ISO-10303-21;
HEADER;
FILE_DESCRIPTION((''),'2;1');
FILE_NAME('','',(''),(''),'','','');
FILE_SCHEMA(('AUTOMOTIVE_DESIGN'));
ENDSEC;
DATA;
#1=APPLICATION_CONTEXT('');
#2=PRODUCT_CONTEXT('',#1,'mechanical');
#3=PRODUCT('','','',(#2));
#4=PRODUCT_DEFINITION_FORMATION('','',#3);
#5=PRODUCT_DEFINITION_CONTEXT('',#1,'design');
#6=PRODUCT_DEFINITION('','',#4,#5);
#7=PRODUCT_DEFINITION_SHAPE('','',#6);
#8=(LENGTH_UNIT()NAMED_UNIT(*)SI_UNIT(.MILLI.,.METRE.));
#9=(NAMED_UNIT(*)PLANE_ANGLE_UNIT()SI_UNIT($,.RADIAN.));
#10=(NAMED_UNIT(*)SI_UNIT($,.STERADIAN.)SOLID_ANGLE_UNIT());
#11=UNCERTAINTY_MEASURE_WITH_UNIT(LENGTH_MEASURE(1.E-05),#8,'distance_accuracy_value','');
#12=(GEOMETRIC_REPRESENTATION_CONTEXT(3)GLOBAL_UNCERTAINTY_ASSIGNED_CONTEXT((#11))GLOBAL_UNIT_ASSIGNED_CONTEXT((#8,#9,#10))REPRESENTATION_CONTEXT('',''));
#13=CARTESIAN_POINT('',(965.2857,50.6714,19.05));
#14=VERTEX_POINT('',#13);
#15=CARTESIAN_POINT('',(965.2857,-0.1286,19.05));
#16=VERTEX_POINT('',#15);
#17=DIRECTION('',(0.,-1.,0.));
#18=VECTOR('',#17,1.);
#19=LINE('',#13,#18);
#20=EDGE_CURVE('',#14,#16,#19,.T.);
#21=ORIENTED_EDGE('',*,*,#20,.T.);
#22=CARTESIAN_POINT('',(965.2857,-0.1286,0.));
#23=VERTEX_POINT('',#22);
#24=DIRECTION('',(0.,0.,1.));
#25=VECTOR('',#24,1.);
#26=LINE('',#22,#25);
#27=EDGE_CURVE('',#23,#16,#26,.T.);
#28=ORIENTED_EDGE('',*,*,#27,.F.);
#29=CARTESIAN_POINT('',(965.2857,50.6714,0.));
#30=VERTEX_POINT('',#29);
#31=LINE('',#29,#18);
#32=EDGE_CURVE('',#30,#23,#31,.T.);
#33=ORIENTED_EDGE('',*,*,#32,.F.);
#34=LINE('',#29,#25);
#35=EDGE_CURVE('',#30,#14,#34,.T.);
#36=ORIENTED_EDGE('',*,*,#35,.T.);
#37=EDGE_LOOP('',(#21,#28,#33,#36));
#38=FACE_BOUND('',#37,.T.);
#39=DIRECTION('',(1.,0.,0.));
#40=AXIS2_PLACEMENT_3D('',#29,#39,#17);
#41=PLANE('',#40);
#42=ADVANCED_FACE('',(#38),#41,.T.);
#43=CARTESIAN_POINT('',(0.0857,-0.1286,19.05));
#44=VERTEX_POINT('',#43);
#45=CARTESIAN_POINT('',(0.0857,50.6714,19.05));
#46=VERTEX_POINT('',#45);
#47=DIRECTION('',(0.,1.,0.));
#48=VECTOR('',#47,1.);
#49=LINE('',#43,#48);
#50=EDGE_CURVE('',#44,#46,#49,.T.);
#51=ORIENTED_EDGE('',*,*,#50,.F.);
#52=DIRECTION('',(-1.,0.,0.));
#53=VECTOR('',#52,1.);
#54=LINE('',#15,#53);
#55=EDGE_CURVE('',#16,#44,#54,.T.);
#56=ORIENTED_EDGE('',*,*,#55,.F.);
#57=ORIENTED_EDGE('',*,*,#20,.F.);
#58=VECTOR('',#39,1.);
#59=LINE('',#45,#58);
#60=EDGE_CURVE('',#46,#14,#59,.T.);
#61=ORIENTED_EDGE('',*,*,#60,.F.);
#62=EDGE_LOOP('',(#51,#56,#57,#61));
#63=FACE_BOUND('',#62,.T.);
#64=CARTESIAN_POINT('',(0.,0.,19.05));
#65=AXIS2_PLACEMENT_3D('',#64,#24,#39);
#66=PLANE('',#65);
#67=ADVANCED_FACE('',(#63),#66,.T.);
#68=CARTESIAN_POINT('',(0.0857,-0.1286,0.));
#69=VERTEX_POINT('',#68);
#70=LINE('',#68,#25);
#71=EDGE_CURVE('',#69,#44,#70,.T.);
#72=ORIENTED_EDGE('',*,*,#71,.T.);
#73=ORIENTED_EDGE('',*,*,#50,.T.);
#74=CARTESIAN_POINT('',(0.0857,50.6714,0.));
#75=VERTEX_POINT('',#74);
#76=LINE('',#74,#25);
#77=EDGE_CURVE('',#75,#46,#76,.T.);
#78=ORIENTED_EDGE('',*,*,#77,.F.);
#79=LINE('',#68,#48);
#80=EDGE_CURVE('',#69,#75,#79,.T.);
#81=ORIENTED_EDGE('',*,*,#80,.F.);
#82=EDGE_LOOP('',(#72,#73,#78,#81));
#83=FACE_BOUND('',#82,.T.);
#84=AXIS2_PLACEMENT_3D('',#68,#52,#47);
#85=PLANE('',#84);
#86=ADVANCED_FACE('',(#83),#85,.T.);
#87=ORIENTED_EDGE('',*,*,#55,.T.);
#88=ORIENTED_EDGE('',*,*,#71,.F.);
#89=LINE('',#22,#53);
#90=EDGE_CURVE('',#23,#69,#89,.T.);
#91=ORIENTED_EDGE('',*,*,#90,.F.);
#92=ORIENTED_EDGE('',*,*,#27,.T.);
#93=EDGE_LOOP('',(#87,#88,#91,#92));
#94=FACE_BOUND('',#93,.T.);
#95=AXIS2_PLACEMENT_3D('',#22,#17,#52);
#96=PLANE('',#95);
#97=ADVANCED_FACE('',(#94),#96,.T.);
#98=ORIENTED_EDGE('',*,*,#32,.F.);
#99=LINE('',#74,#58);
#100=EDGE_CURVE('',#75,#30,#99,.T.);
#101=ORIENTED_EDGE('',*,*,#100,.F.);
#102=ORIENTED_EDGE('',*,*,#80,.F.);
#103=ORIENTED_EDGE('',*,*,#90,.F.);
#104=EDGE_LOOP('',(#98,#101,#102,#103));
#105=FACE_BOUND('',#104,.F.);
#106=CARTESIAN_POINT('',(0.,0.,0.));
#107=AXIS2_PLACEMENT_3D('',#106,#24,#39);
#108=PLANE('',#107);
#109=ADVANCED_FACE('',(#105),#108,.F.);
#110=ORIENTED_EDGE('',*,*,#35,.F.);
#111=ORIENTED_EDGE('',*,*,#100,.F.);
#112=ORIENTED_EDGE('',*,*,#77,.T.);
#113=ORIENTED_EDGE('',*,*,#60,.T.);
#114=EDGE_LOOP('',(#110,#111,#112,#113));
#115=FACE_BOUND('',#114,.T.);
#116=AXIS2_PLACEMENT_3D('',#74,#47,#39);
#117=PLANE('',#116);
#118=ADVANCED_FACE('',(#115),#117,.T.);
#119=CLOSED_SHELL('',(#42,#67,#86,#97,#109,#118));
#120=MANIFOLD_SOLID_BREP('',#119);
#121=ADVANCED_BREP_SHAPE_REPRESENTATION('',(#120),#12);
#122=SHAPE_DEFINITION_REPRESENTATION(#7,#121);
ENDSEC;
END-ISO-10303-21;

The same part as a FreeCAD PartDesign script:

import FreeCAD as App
import Part
import Sketcher
from FreeCAD import Vector
Q = App.Units.Quantity


def add_polygon(sketch, points):
    """Adds a closed chain of lines whose ends are joined by coincident constraints."""
    first, n = sketch.GeometryCount, len(points)
    for a, b in zip(points, points[1:] + points[:1]):
        sketch.addGeometry(Part.LineSegment(App.Vector(*a, 0), App.Vector(*b, 0)), False)
    for i in range(n):
        sketch.addConstraint(Sketcher.Constraint("Coincident", first + i, 2, first + (i + 1) % n, 1))

doc = App.newDocument("Part")
body = doc.addObject("PartDesign::Body", "Body")

# Sketch on XY plane
sketch1 = body.newObject("Sketcher::SketchObject", "Sketch")
sketch1.AttachmentSupport = (doc.getObject("XY_Plane"), [""])
sketch1.MapMode = "FlatFace"
add_polygon(sketch1, [(0.0857, 50.6714), (0.0857, -0.1286), (965.2857, -0.1286), (965.2857, 50.6714)])  # lines 0-3
sketch1.addConstraint(Sketcher.Constraint("Vertical", 0))
sketch1.addConstraint(Sketcher.Constraint("Horizontal", 1))
sketch1.addConstraint(Sketcher.Constraint("Vertical", 2))
sketch1.addConstraint(Sketcher.Constraint("Horizontal", 3))
sketch1.addConstraint(Sketcher.Constraint("DistanceX", 1, 1, 1, 2, Q("38 in")))
sketch1.addConstraint(Sketcher.Constraint("DistanceY", 0, 2, 0, 1, Q("2 in")))
sketch1.addConstraint(Sketcher.Constraint("DistanceX", -1, 1, 0, 2, 0.0857))
sketch1.addConstraint(Sketcher.Constraint("DistanceY", 0, 2, -1, 1, 0.1286))
pad1 = body.newObject("PartDesign::Pad", "Pad")
pad1.Profile = sketch1
pad1.Length = Q("0.75 in")

doc.recompute()
